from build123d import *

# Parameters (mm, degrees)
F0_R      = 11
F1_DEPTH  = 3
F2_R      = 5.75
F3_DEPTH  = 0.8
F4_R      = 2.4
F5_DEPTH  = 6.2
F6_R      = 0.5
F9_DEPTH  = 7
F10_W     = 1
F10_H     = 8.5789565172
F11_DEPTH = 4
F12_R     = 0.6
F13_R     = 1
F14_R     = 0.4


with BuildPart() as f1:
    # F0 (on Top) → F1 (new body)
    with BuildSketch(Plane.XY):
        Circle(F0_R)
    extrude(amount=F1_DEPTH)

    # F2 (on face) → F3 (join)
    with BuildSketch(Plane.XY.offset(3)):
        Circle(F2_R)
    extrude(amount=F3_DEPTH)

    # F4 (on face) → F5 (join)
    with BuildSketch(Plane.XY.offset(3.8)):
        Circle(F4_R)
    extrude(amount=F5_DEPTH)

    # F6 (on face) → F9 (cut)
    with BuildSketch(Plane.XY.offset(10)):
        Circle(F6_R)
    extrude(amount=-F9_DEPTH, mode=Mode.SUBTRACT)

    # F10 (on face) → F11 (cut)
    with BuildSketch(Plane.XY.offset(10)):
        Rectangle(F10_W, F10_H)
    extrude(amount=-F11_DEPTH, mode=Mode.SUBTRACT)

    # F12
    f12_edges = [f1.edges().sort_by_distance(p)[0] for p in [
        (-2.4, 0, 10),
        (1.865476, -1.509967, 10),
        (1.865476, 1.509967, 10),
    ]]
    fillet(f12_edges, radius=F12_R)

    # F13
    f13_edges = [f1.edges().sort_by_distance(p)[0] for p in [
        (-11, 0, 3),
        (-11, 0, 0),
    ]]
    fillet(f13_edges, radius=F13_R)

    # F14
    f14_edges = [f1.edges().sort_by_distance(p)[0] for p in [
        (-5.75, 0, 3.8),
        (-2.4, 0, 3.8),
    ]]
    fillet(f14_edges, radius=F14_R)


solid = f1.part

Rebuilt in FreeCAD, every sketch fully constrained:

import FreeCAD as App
import Part
import Sketcher
from FreeCAD import Vector


def edges_at(feature, points):
    """Names of the edges that pass closest to the given points."""
    edges = feature.Shape.Edges
    near = lambda p: min(range(len(edges)), key=lambda i: edges[i].distToShape(Part.Vertex(*p))[0])
    return sorted({f"Edge{near(p) + 1}" for p in points})


def add_polygon(sketch, points):
    """Adds a closed chain of lines whose ends are joined by coincident constraints."""
    first, n = sketch.GeometryCount, len(points)
    for a, b in zip(points, points[1:] + points[:1]):
        sketch.addGeometry(Part.LineSegment(App.Vector(*a, 0), App.Vector(*b, 0)), False)
    for i in range(n):
        sketch.addConstraint(Sketcher.Constraint("Coincident", first + i, 2, first + (i + 1) % n, 1))

doc = App.newDocument("Part")
body = doc.addObject("PartDesign::Body", "Body")

# Sketch on XY plane
sketch1 = body.newObject("Sketcher::SketchObject", "Sketch")
sketch1.AttachmentSupport = (doc.getObject("XY_Plane"), [""])
sketch1.MapMode = "FlatFace"
sketch1.addGeometry(Part.Circle(Vector(0, 0, 0), Vector(0, 0, 1), 11), False)
sketch1.addConstraint([
    Sketcher.Constraint("Coincident", 0, 3, -1, 1),
    Sketcher.Constraint("Diameter", 0, 22.0),
])
pad1 = body.newObject("PartDesign::Pad", "Pad")
pad1.Profile = sketch1
pad1.Length = 3

# Sketch on XY plane
sketch2 = body.newObject("Sketcher::SketchObject", "Sketch001")
sketch2.AttachmentSupport = (doc.getObject("XY_Plane"), [""])
sketch2.MapMode = "FlatFace"
sketch2.AttachmentOffset = App.Placement(Vector(0, 0, 3), App.Rotation())
sketch2.addGeometry(Part.Circle(Vector(0, 0, 0), Vector(0, 0, 1), 6), False)
sketch2.addConstraint([
    Sketcher.Constraint("Coincident", 0, 3, -1, 1),
    Sketcher.Constraint("Diameter", 0, 11.5),
])
pad2 = body.newObject("PartDesign::Pad", "Pad001")
pad2.Profile = sketch2
pad2.Length = 0.8

# Sketch on XY plane
sketch3 = body.newObject("Sketcher::SketchObject", "Sketch002")
sketch3.AttachmentSupport = (doc.getObject("XY_Plane"), [""])
sketch3.MapMode = "FlatFace"
sketch3.AttachmentOffset = App.Placement(Vector(0, 0, 3.8), App.Rotation())
sketch3.addGeometry(Part.Circle(Vector(0, 0, 0), Vector(0, 0, 1), 2.4), False)
sketch3.addConstraint([
    Sketcher.Constraint("Coincident", 0, 3, -1, 1),
    Sketcher.Constraint("Diameter", 0, 4.8),
])
pad3 = body.newObject("PartDesign::Pad", "Pad002")
pad3.Profile = sketch3
pad3.Length = 6.2

# Sketch on XY plane
sketch4 = body.newObject("Sketcher::SketchObject", "Sketch003")
sketch4.AttachmentSupport = (doc.getObject("XY_Plane"), [""])
sketch4.MapMode = "FlatFace"
sketch4.AttachmentOffset = App.Placement(Vector(0, 0, 10), App.Rotation())
sketch4.addGeometry(Part.Circle(Vector(0, 0, 0), Vector(0, 0, 1), 0.5), False)
sketch4.addConstraint([
    Sketcher.Constraint("Coincident", 0, 3, -1, 1),
    Sketcher.Constraint("Diameter", 0, 1.0),
])
pocket1 = body.newObject("PartDesign::Pocket", "Pocket")
pocket1.Profile = sketch4
pocket1.Length = 7

# Sketch on XY plane
sketch5 = body.newObject("Sketcher::SketchObject", "Sketch004")
sketch5.AttachmentSupport = (doc.getObject("XY_Plane"), [""])
sketch5.MapMode = "FlatFace"
sketch5.AttachmentOffset = App.Placement(Vector(0, 0, 10), App.Rotation())
add_polygon(sketch5, [(-0.5, 4.3), (-0.5, -4.3), (0.5, -4.3), (0.5, 4.3)])  # lines 0-3
sketch5.addConstraint([
    Sketcher.Constraint("Vertical", 0),
    Sketcher.Constraint("Horizontal", 1),
    Sketcher.Constraint("Vertical", 2),
    Sketcher.Constraint("Horizontal", 3),
    Sketcher.Constraint("Symmetric", 0, 2, 2, 2, -1, 1),
    Sketcher.Constraint("DistanceX", 1, 1, 1, 2, 1.0),
    Sketcher.Constraint("DistanceY", 0, 2, 0, 1, 8.578957),
])
pocket2 = body.newObject("PartDesign::Pocket", "Pocket001")
pocket2.Profile = sketch5
pocket2.Length = 4
doc.recompute()

fillet = body.newObject("PartDesign::Fillet", "Fillet")
fillet.Base = (pocket2, edges_at(pocket2, [(-2.4, 0, 10), (1.865, -1.51, 10), (1.865, 1.51, 10)]))
fillet.Radius = 0.6
doc.recompute()

fillet2 = body.newObject("PartDesign::Fillet", "Fillet001")
fillet2.Base = (fillet, edges_at(fillet, [(-11, 0, 3), (-11, 0, 0)]))
fillet2.Radius = 1
doc.recompute()

fillet3 = body.newObject("PartDesign::Fillet", "Fillet002")
fillet3.Base = (fillet2, edges_at(fillet2, [(-5.75, 0, 3.8), (-2.4, 0, 3.8)]))
fillet3.Radius = 0.4

doc.recompute()
